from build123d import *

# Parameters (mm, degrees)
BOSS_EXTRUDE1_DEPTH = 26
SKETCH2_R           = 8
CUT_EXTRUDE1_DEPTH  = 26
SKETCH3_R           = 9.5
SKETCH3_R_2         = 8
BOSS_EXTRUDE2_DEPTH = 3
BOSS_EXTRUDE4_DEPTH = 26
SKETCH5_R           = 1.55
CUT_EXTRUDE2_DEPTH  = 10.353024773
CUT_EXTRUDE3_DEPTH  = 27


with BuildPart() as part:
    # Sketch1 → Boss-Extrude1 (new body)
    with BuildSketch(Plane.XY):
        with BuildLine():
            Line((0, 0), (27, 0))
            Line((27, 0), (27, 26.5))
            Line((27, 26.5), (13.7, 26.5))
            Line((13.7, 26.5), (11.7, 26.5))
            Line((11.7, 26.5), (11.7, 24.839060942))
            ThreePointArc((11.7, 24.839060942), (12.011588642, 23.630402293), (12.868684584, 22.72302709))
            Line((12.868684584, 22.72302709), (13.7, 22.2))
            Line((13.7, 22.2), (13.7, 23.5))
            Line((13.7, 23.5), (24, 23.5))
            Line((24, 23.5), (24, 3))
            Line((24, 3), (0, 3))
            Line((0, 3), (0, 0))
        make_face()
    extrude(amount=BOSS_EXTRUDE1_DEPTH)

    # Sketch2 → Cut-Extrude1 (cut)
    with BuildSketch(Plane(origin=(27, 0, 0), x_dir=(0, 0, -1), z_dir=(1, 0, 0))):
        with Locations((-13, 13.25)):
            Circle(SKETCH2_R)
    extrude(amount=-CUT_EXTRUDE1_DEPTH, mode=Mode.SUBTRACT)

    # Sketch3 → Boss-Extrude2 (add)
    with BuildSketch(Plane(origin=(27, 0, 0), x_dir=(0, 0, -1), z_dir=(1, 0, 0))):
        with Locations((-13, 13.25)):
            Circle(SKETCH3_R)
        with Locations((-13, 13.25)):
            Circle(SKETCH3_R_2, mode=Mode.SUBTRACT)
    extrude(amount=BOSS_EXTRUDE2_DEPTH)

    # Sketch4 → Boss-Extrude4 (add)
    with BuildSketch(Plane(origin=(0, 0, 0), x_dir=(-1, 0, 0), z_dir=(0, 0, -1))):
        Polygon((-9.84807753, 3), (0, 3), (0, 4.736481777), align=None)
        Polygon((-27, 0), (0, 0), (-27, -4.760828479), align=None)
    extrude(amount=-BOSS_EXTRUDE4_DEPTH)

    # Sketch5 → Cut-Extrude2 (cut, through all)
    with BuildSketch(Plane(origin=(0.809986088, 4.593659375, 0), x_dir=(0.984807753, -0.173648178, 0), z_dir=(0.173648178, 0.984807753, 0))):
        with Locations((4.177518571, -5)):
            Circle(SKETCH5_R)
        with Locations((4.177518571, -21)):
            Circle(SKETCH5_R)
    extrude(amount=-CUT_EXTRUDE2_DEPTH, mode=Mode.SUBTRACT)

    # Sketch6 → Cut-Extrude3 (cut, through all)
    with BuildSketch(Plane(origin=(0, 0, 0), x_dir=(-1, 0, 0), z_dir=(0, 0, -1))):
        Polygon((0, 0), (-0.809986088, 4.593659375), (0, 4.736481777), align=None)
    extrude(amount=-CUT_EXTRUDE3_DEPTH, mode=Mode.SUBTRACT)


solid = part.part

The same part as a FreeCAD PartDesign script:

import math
import FreeCAD as App
import Part
import Sketcher
Q = App.Units.Quantity


def add_polygon(sketch, points):
    """Adds a closed chain of lines whose ends are joined by coincident constraints."""
    first, n = sketch.GeometryCount, len(points)
    for a, b in zip(points, points[1:] + points[:1]):
        sketch.addGeometry(Part.LineSegment(App.Vector(*a, 0), App.Vector(*b, 0)), False)
    for i in range(n):
        sketch.addConstraint(Sketcher.Constraint("Coincident", first + i, 2, first + (i + 1) % n, 1))

doc = App.newDocument("Part")
body = doc.addObject("PartDesign::Body", "Body")

sketch1 = body.newObject("Sketcher::SketchObject", "Sketch")
sketch1.AttachmentSupport = (doc.getObject("XY_Plane"), [""])
sketch1.MapMode = "FlatFace"
sketch1.addGeometry(Part.LineSegment(App.Vector(0, 0, 0), App.Vector(27, 0, 0)), False)
sketch1.addGeometry(Part.LineSegment(App.Vector(27, 0, 0), App.Vector(27, 26.5, 0)), False)
sketch1.addGeometry(Part.LineSegment(App.Vector(27, 26.5, 0), App.Vector(11.7, 26.5, 0)), False)
sketch1.addGeometry(Part.LineSegment(App.Vector(11.7, 26.5, 0), App.Vector(11.7, 24.8, 0)), False)
sketch1.addGeometry(Part.ArcOfCircle(Part.Circle(App.Vector(14.2, 24.8, 0), App.Vector(0, 0, 1), 2.5), math.radians(180), math.radians(238)), False)
sketch1.addGeometry(Part.LineSegment(App.Vector(12.9, 22.7, 0), App.Vector(13.7, 22.2, 0)), False)
sketch1.addGeometry(Part.LineSegment(App.Vector(13.7, 22.2, 0), App.Vector(13.7, 23.5, 0)), False)
sketch1.addGeometry(Part.LineSegment(App.Vector(13.7, 23.5, 0), App.Vector(24, 23.5, 0)), False)
sketch1.addGeometry(Part.LineSegment(App.Vector(24, 23.5, 0), App.Vector(24, 3, 0)), False)
sketch1.addGeometry(Part.LineSegment(App.Vector(24, 3, 0), App.Vector(0, 3, 0)), False)
sketch1.addGeometry(Part.LineSegment(App.Vector(0, 3, 0), App.Vector(0, 0, 0)), False)
sketch1.addConstraint(Sketcher.Constraint("Coincident", 0, 2, 1, 1))
sketch1.addConstraint(Sketcher.Constraint("Coincident", 1, 2, 2, 1))
sketch1.addConstraint(Sketcher.Constraint("Coincident", 2, 2, 3, 1))
sketch1.addConstraint(Sketcher.Constraint("Tangent", 3, 2, 4, 1))
sketch1.addConstraint(Sketcher.Constraint("Tangent", 4, 2, 5, 1))
sketch1.addConstraint(Sketcher.Constraint("Coincident", 5, 2, 6, 1))
sketch1.addConstraint(Sketcher.Constraint("Coincident", 6, 2, 7, 1))
sketch1.addConstraint(Sketcher.Constraint("Coincident", 7, 2, 8, 1))
sketch1.addConstraint(Sketcher.Constraint("Coincident", 8, 2, 9, 1))
sketch1.addConstraint(Sketcher.Constraint("Coincident", 9, 2, 10, 1))
sketch1.addConstraint(Sketcher.Constraint("Coincident", 10, 2, 0, 1))
sketch1.addConstraint(Sketcher.Constraint("Horizontal", 0))
sketch1.addConstraint(Sketcher.Constraint("Vertical", 1))
sketch1.addConstraint(Sketcher.Constraint("Horizontal", 2))
sketch1.addConstraint(Sketcher.Constraint("Vertical", 3))
sketch1.addConstraint(Sketcher.Constraint("Vertical", 6))
sketch1.addConstraint(Sketcher.Constraint("Horizontal", 7))
sketch1.addConstraint(Sketcher.Constraint("Vertical", 8))
sketch1.addConstraint(Sketcher.Constraint("Horizontal", 9))
sketch1.addConstraint(Sketcher.Constraint("Vertical", 10))
sketch1.addConstraint(Sketcher.Constraint("Coincident", 10, 2, -1, 1))
sketch1.addConstraint(Sketcher.Constraint("Radius", 4, Q("2.5 mm")))
sketch1.addConstraint(Sketcher.Constraint("DistanceX", 0, 1, 0, 2, Q("27 mm")))
sketch1.addConstraint(Sketcher.Constraint("DistanceX", 9, 2, 9, 1, Q("24 mm")))
sketch1.addConstraint(Sketcher.Constraint("DistanceY", 10, 2, 10, 1, Q("3 mm")))
sketch1.addConstraint(Sketcher.Constraint("DistanceX", 2, 2, 2, 1, Q("15.3 mm")))
sketch1.addConstraint(Sketcher.Constraint("DistanceX", 7, 1, 7, 2, Q("10.3 mm")))
sketch1.addConstraint(Sketcher.Constraint("DistanceY", 1, 1, 1, 2, Q("26.5 mm")))
sketch1.addConstraint(Sketcher.Constraint("DistanceY", 6, 1, 6, 2, Q("1.3 mm")))
sketch1.addConstraint(Sketcher.Constraint("DistanceY", 8, 2, 8, 1, Q("20.5 mm")))
sketch1.addConstraint(Sketcher.Constraint("DistanceY", 3, 2, 3, 1, Q("1.660939 mm")))
pad1 = body.newObject("PartDesign::Pad", "Pad")
pad1.Profile = sketch1
pad1.Length = 26

sketch2 = body.newObject("Sketcher::SketchObject", "Sketch001")
sketch2.AttachmentSupport = (doc.getObject("YZ_Plane"), [""])
sketch2.MapMode = "FlatFace"
sketch2.AttachmentOffset = App.Placement(App.Vector(0, 0, 27), App.Rotation())
sketch2.addGeometry(Part.Circle(App.Vector(13, 13, 0), App.Vector(0, 0, 1), 8), False)
sketch2.addConstraint(Sketcher.Constraint("Diameter", 0, Q("16 mm")))
sketch2.addConstraint(Sketcher.Constraint("DistanceY", -1, 1, 0, 3, Q("13 mm")))
sketch2.addConstraint(Sketcher.Constraint("DistanceX", -1, 1, 0, 3, Q("13.25 mm")))
pocket1 = body.newObject("PartDesign::Pocket", "Pocket")
pocket1.Profile = sketch2
pocket1.Length = 26

sketch3 = body.newObject("Sketcher::SketchObject", "Sketch002")
sketch3.AttachmentSupport = (doc.getObject("YZ_Plane"), [""])
sketch3.MapMode = "FlatFace"
sketch3.AttachmentOffset = App.Placement(App.Vector(0, 0, 27), App.Rotation())
sketch3.addGeometry(Part.Circle(App.Vector(13, 13, 0), App.Vector(0, 0, 1), 10), False)
sketch3.addGeometry(Part.Circle(App.Vector(13, 13, 0), App.Vector(0, 0, 1), 8), False)
sketch3.addConstraint(Sketcher.Constraint("Coincident", 1, 3, 0, 3))
sketch3.addConstraint(Sketcher.Constraint("Diameter", 0, Q("19 mm")))
sketch3.addConstraint(Sketcher.Constraint("Diameter", 1, Q("16 mm")))
sketch3.addConstraint(Sketcher.Constraint("DistanceY", -1, 1, 0, 3, Q("13 mm")))
sketch3.addConstraint(Sketcher.Constraint("DistanceX", -1, 1, 0, 3, Q("13.25 mm")))
pad2 = body.newObject("PartDesign::Pad", "Pad001")
pad2.Profile = sketch3
pad2.Length = 3

sketch4 = body.newObject("Sketcher::SketchObject", "Sketch003")
sketch4.AttachmentSupport = (doc.getObject("XY_Plane"), [""])
sketch4.MapMode = "FlatFace"
add_polygon(sketch4, [(9.8, 3), (0, 3), (0, 4.7)])
add_polygon(sketch4, [(0, 0), (27, 0), (27, -4.8)])
sketch4.addConstraint(Sketcher.Constraint("Horizontal", 0))
sketch4.addConstraint(Sketcher.Constraint("Vertical", 1))
sketch4.addConstraint(Sketcher.Constraint("Horizontal", 3))
sketch4.addConstraint(Sketcher.Constraint("Vertical", 4))
sketch4.addConstraint(Sketcher.Constraint("Coincident", 5, 2, -1, 1))
sketch4.addConstraint(Sketcher.Constraint("PointOnObject", 0, 2, -2))
sketch4.addConstraint(Sketcher.Constraint("Parallel", 2, 5))
sketch4.addConstraint(Sketcher.Constraint("DistanceX", 3, 1, 3, 2, Q("27 mm")))
sketch4.addConstraint(Sketcher.Constraint("Angle", 2, Q("-10 deg")))
sketch4.addConstraint(Sketcher.Constraint("Distance", 2, Q("10 mm")))
sketch4.addConstraint(Sketcher.Constraint("DistanceY", -1, 1, 0, 2, Q("3 mm")))
pad3 = body.newObject("PartDesign::Pad", "Pad002")
pad3.Profile = sketch4
pad3.Length = 26

sketch5 = body.newObject("Sketcher::SketchObject", "Sketch004")
sketch5.Placement = App.Placement(App.Vector(0.809986, 4.593659, 0), App.Rotation(App.Vector(0.984807753, -0.173648178, 0), App.Vector(0, 0, -1), App.Vector(0.173648178, 0.984807753, 0), "ZXY"))
sketch5.addGeometry(Part.Circle(App.Vector(4.2, -5, 0), App.Vector(0, 0, 1), 1.6), False)
sketch5.addGeometry(Part.Circle(App.Vector(4.2, -21, 0), App.Vector(0, 0, 1), 1.6), False)
sketch5.addConstraint(Sketcher.Constraint("Equal", 0, 1))
sketch5.addConstraint(Sketcher.Constraint("Vertical", 0, 3, 1, 3))
sketch5.addConstraint(Sketcher.Constraint("Diameter", 0, Q("3.1 mm")))
sketch5.addConstraint(Sketcher.Constraint("DistanceY", 0, 3, -1, 1, Q("5 mm")))
sketch5.addConstraint(Sketcher.Constraint("DistanceY", 1, 3, -1, 1, Q("21 mm")))
sketch5.addConstraint(Sketcher.Constraint("DistanceX", -1, 1, 0, 3, Q("4.177519 mm")))
pocket2 = body.newObject("PartDesign::Pocket", "Pocket001")
pocket2.Profile = sketch5
pocket2.Type = "ThroughAll"

sketch6 = body.newObject("Sketcher::SketchObject", "Sketch005")
sketch6.AttachmentSupport = (doc.getObject("XY_Plane"), [""])
sketch6.MapMode = "FlatFace"
add_polygon(sketch6, [(0.8, 4.6), (0, 0), (0, 4.7)])
sketch6.addConstraint(Sketcher.Constraint("Vertical", 1))
sketch6.addConstraint(Sketcher.Constraint("Coincident", 0, 2, -1, 1))
sketch6.addConstraint(Sketcher.Constraint("Perpendicular", 0, 2))
sketch6.addConstraint(Sketcher.Constraint("Angle", 0, Q("-100 deg")))
sketch6.addConstraint(Sketcher.Constraint("DistanceY", 1, 1, 1, 2, Q("4.736482 mm")))
pocket3 = body.newObject("PartDesign::Pocket", "Pocket002")
pocket3.Profile = sketch6
pocket3.Type = "ThroughAll"
pocket3.Reversed = True

doc.recompute()
